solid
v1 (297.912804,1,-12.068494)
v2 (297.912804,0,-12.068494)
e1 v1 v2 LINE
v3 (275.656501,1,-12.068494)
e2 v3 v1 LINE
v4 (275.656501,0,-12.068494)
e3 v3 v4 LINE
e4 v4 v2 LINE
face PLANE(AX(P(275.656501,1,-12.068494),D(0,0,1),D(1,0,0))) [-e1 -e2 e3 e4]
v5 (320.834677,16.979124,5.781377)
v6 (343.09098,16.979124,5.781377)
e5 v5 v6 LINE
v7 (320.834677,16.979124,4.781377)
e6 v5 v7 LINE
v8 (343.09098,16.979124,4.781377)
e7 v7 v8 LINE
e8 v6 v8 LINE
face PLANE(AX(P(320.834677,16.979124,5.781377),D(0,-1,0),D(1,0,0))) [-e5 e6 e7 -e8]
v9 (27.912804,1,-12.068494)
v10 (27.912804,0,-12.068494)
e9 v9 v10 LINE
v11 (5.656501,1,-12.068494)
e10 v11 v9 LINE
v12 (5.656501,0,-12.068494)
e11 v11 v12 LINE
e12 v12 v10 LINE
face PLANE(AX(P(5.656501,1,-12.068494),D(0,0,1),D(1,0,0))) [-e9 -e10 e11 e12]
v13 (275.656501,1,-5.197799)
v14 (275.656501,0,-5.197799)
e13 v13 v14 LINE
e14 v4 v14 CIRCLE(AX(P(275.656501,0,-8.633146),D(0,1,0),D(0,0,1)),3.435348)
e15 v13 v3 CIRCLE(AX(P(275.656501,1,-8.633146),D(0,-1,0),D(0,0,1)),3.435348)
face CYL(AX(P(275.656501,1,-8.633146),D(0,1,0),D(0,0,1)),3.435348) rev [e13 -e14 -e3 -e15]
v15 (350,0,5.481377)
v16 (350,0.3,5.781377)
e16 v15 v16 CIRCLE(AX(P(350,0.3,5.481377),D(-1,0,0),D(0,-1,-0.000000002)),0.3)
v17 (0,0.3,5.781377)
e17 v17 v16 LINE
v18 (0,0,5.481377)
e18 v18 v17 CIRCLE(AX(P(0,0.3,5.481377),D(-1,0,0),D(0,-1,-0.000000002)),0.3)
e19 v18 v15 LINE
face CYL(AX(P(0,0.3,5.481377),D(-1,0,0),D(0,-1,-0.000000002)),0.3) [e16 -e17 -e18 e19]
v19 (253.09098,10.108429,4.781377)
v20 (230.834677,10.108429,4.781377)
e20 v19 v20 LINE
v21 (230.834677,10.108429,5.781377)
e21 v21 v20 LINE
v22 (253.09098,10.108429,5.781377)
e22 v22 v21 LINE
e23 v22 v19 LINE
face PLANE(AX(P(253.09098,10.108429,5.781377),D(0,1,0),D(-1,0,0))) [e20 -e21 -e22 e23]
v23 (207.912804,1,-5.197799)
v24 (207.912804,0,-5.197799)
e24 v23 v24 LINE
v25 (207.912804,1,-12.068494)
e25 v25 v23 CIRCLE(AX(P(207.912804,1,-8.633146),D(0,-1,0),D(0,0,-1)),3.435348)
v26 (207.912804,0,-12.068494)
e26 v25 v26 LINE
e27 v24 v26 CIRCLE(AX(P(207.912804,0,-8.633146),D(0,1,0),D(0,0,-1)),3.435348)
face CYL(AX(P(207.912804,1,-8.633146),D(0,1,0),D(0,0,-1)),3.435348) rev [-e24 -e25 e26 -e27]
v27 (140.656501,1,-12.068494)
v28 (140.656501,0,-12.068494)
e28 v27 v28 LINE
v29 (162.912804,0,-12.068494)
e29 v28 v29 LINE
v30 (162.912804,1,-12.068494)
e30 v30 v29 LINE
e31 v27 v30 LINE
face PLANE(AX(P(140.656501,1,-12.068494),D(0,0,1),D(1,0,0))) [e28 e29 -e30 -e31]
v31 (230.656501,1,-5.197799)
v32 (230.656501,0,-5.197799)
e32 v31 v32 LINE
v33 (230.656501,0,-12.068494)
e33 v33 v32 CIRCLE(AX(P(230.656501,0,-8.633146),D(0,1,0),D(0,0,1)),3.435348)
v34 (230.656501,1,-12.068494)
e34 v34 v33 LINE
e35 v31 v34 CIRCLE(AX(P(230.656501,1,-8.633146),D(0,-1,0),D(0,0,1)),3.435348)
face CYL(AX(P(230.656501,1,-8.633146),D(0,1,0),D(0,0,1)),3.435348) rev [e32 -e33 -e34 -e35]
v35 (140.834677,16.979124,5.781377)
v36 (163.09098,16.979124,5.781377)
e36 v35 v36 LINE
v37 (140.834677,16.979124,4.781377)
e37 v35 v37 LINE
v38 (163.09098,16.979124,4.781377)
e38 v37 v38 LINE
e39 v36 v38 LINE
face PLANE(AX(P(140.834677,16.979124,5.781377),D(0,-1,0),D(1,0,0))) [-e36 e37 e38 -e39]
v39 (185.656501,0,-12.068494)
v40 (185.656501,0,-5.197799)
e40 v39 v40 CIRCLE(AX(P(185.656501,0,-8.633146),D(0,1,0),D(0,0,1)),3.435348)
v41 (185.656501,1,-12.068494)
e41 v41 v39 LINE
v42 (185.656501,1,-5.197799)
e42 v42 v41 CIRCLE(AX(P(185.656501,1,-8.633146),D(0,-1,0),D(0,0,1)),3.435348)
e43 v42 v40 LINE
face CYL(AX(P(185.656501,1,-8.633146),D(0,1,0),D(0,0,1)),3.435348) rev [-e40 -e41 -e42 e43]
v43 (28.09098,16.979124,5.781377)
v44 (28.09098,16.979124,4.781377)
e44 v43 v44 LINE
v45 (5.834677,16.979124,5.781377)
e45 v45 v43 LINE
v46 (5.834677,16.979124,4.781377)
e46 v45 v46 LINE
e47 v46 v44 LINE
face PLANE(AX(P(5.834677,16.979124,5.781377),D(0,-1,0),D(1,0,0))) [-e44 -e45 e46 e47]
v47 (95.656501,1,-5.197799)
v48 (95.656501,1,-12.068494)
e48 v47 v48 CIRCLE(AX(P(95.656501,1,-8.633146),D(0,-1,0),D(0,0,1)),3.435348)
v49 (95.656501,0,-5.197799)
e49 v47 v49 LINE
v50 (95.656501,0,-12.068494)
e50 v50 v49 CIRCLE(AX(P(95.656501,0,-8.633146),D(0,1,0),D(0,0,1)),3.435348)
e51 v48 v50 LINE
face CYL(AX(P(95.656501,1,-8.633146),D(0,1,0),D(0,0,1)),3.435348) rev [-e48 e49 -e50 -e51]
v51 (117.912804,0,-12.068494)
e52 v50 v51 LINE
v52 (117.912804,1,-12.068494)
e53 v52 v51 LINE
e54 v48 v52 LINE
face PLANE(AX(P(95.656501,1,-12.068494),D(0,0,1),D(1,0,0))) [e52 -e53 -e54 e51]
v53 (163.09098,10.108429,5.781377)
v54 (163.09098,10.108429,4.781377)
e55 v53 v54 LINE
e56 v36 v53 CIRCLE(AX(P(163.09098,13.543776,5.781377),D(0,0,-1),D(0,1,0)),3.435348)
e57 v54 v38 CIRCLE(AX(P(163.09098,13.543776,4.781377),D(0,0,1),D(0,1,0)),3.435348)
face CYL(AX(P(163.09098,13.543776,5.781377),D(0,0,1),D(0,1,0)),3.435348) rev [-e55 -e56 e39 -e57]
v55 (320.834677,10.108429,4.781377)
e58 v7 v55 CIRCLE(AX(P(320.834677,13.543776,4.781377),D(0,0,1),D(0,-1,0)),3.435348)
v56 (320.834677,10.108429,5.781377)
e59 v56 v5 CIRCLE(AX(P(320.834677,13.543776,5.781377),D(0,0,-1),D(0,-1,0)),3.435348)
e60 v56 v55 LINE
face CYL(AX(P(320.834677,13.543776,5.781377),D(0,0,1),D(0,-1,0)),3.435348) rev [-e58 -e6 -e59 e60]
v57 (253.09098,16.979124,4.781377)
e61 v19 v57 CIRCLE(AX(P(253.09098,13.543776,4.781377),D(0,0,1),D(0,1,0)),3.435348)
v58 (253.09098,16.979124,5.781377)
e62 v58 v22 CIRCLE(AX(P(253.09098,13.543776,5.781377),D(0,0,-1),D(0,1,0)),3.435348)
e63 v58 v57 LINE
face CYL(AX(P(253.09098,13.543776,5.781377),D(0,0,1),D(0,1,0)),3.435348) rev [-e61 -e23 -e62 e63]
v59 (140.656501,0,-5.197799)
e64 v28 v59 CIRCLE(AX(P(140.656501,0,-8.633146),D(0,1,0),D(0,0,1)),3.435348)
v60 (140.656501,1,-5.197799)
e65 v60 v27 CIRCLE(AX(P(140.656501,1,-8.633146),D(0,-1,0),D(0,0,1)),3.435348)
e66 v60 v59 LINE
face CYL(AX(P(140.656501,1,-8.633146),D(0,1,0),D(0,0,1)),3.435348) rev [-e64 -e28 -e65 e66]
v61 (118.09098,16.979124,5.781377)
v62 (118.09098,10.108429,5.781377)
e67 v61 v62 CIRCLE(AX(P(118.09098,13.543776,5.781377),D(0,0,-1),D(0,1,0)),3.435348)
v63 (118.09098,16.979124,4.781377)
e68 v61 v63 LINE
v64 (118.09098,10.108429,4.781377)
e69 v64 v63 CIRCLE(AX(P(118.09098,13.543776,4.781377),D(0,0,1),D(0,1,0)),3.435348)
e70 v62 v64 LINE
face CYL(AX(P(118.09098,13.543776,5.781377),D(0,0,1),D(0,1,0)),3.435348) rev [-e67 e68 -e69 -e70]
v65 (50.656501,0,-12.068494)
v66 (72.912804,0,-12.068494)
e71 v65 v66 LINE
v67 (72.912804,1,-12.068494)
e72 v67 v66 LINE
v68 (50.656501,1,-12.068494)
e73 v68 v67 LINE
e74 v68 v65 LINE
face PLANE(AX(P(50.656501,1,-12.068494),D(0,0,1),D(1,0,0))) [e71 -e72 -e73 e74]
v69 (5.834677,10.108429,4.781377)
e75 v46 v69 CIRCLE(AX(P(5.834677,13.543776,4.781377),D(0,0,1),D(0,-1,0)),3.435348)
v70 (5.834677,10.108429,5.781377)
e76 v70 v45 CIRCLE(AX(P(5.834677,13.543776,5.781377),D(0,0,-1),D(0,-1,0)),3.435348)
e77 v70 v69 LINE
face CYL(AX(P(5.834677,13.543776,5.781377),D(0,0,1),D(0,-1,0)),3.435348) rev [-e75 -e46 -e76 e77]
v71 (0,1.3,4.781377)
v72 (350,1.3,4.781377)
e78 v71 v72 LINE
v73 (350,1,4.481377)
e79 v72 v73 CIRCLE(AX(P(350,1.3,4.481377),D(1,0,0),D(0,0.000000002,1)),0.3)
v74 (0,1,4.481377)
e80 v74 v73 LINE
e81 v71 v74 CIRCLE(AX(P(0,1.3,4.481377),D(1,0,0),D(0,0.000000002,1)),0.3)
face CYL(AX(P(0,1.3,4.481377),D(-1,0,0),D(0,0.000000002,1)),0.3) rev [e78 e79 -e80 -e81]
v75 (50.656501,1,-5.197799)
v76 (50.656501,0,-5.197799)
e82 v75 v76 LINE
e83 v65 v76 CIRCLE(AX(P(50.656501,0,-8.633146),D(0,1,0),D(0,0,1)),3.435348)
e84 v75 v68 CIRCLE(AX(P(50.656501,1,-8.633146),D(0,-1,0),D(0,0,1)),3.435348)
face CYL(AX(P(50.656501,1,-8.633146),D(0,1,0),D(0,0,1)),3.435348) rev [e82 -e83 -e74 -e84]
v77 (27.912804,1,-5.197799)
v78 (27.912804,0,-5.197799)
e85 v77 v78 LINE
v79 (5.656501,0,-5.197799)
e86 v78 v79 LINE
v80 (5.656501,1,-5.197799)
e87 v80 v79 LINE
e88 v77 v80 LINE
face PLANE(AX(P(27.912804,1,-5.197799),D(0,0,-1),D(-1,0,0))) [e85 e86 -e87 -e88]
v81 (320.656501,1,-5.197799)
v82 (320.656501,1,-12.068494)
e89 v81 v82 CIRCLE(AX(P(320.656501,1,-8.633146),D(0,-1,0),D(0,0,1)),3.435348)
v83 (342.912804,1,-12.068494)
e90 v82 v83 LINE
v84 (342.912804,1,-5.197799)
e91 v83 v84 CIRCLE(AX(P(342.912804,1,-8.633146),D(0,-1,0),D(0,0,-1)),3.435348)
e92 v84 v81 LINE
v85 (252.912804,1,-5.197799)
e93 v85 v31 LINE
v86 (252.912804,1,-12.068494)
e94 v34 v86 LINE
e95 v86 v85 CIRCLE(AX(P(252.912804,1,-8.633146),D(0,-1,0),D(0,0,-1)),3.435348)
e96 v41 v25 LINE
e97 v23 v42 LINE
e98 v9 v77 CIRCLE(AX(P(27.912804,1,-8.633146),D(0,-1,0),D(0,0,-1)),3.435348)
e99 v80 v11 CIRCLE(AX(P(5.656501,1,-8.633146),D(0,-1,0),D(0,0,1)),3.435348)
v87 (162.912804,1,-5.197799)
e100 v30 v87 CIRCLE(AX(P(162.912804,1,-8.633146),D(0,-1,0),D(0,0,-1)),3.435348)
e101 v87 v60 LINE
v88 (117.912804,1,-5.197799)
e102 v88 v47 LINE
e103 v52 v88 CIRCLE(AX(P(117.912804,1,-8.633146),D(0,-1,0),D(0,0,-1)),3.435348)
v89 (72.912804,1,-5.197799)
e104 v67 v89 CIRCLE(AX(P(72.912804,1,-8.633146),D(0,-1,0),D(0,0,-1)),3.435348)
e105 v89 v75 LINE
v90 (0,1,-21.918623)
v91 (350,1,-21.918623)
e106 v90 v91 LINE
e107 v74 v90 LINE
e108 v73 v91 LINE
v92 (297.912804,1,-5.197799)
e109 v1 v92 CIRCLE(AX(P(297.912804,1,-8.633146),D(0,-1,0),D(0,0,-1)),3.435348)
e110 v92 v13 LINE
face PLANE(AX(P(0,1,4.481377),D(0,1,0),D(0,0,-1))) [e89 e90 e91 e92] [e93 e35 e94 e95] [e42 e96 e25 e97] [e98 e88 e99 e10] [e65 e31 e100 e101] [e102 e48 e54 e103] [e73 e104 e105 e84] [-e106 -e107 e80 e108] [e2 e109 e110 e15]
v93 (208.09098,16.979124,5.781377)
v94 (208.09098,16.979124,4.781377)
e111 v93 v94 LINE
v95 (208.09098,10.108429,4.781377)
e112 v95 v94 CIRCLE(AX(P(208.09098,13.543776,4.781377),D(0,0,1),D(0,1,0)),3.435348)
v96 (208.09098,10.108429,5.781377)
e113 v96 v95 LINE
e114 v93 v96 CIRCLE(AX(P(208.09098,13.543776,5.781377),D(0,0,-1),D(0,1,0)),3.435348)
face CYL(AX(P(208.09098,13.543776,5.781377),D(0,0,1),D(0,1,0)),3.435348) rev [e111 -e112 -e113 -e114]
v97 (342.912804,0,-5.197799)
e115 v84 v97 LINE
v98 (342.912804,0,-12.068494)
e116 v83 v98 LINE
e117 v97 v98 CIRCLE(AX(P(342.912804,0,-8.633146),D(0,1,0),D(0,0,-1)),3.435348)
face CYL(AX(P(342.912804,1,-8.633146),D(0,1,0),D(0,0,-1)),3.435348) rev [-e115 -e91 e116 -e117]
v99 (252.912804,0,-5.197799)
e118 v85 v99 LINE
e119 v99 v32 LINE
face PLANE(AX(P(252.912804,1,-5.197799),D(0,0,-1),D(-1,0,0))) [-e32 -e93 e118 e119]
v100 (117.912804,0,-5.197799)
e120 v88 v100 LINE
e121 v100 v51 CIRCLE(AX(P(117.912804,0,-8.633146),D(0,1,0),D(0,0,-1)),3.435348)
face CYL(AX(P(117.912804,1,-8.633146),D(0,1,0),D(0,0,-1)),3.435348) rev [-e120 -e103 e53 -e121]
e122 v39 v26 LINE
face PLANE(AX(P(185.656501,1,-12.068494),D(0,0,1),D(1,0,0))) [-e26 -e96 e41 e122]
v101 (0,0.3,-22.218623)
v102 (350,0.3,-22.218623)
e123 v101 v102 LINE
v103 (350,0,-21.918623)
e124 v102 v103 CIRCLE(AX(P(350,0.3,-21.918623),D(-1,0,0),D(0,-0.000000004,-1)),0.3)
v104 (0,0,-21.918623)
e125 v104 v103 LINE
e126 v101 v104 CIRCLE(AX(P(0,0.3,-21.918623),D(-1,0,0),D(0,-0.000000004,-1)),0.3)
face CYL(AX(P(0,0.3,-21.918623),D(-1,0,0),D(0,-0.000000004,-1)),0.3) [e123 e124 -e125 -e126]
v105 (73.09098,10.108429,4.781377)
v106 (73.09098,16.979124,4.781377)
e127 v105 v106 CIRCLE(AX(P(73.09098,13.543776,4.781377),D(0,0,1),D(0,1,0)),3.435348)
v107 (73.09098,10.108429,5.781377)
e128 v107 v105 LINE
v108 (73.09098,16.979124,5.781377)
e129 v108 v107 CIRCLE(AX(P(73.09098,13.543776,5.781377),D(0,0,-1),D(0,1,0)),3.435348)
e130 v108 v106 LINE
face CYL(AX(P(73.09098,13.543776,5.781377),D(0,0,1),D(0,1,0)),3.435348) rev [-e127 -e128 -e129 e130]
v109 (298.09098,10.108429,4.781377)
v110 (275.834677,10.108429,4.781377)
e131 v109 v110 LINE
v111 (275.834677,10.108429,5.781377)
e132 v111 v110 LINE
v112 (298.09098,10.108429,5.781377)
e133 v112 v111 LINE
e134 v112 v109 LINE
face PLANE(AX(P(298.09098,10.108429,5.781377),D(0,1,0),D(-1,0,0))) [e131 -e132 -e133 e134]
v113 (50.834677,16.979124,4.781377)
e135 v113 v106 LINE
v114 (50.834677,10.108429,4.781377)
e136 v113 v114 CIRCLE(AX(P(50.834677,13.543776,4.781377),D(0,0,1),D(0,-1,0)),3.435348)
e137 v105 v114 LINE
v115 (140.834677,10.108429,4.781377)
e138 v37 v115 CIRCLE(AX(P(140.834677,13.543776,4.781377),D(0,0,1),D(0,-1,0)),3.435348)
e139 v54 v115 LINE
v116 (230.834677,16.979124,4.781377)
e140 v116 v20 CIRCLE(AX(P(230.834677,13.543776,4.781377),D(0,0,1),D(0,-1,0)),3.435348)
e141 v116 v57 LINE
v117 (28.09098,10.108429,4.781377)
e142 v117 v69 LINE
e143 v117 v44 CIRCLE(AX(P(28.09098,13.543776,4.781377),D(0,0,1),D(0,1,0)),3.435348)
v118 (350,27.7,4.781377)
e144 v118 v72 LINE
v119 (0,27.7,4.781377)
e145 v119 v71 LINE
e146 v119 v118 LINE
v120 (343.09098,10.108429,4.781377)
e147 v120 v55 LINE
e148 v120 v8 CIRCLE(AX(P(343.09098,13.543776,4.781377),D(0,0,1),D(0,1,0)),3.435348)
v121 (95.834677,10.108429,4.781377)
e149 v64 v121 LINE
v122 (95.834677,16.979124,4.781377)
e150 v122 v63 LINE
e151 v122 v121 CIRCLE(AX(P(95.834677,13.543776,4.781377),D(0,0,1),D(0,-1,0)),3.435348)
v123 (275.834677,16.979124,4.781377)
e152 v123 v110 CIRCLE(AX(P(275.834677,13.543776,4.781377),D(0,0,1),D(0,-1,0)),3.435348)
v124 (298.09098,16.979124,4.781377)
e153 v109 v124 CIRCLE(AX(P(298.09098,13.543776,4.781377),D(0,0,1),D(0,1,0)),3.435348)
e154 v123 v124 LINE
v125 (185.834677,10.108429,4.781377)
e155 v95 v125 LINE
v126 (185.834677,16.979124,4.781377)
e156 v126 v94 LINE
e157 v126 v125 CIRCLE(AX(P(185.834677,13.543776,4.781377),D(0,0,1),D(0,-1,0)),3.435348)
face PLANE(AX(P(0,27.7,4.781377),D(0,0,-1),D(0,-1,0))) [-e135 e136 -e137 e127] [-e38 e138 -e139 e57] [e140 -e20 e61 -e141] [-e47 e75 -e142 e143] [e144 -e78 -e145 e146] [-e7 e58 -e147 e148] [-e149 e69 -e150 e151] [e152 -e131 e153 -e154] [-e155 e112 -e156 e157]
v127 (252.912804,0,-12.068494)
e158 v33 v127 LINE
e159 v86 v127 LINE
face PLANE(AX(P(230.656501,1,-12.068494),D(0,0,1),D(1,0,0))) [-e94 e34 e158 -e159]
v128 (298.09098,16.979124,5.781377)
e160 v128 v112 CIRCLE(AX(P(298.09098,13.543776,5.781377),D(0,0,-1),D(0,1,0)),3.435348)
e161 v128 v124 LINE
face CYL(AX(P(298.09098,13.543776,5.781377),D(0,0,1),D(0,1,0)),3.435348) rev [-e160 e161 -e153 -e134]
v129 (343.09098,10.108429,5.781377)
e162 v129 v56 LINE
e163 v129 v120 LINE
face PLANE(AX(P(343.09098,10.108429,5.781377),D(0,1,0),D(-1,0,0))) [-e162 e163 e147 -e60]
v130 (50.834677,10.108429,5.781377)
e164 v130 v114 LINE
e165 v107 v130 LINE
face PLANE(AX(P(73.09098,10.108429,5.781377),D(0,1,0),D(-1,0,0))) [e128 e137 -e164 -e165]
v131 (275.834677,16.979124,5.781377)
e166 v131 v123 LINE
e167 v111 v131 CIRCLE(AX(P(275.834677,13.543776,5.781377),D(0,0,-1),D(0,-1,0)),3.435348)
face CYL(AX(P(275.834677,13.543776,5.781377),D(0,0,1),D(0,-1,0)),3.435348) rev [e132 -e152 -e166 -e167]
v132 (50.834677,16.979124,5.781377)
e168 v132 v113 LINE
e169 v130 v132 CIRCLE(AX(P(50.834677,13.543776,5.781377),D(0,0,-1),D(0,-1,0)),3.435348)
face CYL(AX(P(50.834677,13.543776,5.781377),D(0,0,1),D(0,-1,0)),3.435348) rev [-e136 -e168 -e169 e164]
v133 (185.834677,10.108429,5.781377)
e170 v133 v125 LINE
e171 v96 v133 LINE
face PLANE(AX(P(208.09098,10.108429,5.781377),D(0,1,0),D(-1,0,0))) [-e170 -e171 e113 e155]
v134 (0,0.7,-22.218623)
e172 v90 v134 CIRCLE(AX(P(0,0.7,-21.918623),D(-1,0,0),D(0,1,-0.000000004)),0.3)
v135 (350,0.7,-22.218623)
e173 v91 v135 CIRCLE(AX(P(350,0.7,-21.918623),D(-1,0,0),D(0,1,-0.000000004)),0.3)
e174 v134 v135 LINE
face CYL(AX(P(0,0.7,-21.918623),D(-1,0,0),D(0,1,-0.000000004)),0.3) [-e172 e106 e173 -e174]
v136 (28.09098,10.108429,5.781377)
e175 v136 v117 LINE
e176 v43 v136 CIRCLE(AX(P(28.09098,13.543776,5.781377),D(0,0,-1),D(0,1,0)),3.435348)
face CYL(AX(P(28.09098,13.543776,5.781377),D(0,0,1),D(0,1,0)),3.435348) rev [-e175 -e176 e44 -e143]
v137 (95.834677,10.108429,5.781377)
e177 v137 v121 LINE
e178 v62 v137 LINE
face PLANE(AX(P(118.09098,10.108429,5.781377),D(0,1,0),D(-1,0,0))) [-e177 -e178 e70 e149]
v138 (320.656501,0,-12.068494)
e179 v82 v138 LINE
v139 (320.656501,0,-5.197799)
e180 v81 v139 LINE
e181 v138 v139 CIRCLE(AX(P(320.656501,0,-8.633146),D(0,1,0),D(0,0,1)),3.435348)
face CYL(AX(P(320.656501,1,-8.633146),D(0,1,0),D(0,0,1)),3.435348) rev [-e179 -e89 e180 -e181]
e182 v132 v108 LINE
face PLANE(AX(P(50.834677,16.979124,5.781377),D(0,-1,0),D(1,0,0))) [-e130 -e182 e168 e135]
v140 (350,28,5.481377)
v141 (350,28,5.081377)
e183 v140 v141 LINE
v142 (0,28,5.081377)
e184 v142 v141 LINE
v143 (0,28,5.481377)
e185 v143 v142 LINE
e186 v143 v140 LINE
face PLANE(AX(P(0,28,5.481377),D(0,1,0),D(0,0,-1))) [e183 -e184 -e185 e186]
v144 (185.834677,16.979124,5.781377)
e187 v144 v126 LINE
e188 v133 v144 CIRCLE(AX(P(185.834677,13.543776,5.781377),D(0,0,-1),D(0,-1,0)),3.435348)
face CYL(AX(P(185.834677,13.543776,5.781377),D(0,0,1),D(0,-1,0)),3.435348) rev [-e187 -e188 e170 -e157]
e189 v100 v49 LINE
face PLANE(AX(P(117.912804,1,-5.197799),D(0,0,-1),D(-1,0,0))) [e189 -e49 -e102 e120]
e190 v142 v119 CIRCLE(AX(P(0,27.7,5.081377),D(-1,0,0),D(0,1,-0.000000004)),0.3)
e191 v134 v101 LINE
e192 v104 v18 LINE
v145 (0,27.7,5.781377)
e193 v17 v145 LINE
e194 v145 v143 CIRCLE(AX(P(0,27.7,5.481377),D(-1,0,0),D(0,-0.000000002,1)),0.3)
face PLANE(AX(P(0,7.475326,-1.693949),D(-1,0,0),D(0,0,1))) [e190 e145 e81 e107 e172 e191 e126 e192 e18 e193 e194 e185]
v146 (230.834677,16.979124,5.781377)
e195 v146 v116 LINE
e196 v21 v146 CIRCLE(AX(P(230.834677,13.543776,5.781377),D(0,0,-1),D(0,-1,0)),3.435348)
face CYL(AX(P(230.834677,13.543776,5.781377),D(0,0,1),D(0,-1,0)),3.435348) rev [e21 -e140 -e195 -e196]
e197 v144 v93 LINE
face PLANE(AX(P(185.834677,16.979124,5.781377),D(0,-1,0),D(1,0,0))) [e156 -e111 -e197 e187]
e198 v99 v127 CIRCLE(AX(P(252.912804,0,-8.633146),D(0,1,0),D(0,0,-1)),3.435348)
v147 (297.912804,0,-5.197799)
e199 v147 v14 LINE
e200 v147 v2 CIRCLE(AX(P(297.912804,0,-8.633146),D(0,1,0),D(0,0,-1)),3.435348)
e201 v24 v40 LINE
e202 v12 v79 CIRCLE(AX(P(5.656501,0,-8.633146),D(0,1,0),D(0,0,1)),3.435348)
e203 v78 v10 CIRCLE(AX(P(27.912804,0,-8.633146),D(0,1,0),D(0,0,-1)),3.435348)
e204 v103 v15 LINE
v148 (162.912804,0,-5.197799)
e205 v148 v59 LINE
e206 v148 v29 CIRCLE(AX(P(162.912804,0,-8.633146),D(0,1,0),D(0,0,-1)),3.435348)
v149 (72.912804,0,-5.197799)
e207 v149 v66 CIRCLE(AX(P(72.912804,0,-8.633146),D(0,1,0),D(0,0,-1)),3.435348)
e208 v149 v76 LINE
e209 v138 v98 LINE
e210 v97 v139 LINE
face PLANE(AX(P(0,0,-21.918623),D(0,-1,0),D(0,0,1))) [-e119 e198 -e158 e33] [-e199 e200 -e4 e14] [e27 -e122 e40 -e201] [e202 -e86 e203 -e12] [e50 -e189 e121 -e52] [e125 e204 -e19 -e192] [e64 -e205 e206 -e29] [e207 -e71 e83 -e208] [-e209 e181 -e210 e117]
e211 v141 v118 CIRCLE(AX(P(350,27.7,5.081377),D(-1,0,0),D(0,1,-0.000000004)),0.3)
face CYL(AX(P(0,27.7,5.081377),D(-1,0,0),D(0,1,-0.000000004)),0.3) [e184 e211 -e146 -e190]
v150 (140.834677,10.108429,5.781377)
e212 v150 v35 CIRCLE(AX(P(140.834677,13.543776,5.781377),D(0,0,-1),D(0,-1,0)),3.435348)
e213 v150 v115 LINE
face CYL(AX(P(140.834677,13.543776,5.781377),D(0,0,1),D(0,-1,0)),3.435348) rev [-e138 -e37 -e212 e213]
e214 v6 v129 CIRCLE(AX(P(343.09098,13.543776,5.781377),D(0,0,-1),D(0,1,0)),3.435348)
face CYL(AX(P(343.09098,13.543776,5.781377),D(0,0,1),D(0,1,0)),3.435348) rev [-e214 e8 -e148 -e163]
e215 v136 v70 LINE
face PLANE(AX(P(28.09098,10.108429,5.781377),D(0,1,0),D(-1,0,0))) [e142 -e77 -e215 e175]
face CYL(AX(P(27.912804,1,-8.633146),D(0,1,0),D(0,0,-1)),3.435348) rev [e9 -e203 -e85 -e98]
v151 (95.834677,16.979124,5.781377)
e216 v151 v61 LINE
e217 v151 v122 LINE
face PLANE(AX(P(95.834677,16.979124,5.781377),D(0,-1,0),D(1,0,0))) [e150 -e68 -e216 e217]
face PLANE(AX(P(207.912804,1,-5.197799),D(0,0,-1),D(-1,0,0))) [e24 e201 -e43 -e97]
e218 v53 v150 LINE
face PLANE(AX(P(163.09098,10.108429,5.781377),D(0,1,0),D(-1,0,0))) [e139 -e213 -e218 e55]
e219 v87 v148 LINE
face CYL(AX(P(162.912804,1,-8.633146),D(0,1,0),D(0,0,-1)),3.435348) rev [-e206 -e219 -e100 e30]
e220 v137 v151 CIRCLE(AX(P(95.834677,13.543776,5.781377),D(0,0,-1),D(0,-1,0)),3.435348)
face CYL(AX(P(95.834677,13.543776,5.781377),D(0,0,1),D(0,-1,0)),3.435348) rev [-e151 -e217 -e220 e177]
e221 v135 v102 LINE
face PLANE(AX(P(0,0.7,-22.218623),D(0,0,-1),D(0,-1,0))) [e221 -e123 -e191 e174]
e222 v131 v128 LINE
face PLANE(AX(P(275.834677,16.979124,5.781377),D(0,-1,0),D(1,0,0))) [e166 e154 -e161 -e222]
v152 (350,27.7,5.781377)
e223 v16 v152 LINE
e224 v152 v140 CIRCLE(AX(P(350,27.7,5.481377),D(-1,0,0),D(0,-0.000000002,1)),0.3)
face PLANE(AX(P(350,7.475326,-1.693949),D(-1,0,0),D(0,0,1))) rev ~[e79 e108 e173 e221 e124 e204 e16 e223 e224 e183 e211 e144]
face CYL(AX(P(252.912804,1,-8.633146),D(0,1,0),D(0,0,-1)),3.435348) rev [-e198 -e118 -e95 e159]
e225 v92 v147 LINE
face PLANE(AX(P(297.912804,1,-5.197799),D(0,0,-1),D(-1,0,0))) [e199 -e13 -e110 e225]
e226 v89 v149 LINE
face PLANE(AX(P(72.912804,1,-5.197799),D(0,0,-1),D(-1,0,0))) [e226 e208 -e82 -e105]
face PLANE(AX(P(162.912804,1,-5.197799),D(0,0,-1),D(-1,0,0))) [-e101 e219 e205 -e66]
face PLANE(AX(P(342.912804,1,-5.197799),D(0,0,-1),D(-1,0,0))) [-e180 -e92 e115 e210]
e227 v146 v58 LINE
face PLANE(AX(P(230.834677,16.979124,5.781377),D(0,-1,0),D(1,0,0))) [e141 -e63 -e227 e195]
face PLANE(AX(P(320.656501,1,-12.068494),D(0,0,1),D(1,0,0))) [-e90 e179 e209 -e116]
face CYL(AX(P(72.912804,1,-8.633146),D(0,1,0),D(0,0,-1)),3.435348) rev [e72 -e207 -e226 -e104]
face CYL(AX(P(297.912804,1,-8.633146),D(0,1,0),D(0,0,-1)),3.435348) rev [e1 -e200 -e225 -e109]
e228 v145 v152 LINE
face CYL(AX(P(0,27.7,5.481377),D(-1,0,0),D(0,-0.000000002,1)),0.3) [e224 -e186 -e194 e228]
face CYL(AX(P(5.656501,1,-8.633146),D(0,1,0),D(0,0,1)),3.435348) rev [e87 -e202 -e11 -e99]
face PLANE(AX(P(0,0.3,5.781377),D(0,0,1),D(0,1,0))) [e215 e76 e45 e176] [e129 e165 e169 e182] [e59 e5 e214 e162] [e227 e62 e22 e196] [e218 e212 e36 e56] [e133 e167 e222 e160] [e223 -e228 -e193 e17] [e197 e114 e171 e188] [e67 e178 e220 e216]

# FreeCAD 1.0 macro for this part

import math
import FreeCAD as App
import Part
import Sketcher

V = App.Vector

doc = App.newDocument("Part")
params = doc.addObject("Spreadsheet::Sheet", "Params")
for row, (alias, value) in enumerate([
    ("sketch1_radius", "0.3 mm"),
    ("sketch1_width", "0.4 mm"),
    ("sketch1_width2", "26.4 mm"),
    ("pad1_length", "350 mm"),
], start=1):
    params.set(f"A{row}", alias)
    params.set(f"B{row}", "=" + value)
    params.setAlias(f"B{row}", alias)

body = doc.addObject("PartDesign::Body", "Body")

sketch1 = body.newObject("Sketcher::SketchObject", "Sketch")
sketch1.AttachmentSupport = (doc.getObject("YZ_Plane"), [""])
sketch1.MapMode = "FlatFace"
sketch1.addGeometry([
    Part.ArcOfCircle(Part.Circle(V(0.3, 5.48, 0), V(0, 0, 1), 0.3), math.radians(90), math.radians(180)),
    Part.LineSegment(V(0, 5.48, 0), V(0, -21.92, 0)),
    Part.ArcOfCircle(Part.Circle(V(0.3, -21.92, 0), V(0, 0, 1), 0.3), math.radians(-180), math.radians(-90)),
    Part.LineSegment(V(0.3, -22.22, 0), V(0.7, -22.22, 0)),
    Part.ArcOfCircle(Part.Circle(V(0.7, -21.92, 0), V(0, 0, 1), 0.3), math.radians(-90), math.radians(0)),
    Part.LineSegment(V(1, -21.92, 0), V(1, 4.48, 0)),
    Part.ArcOfCircle(Part.Circle(V(1.3, 4.48, 0), V(0, 0, 1), 0.3), math.radians(90), math.radians(180)),
    Part.LineSegment(V(1.3, 4.78, 0), V(27.7, 4.78, 0)),
    Part.ArcOfCircle(Part.Circle(V(27.7, 5.08, 0), V(0, 0, 1), 0.3), math.radians(-90), math.radians(0)),
    Part.LineSegment(V(28, 5.08, 0), V(28, 5.48, 0)),
    Part.ArcOfCircle(Part.Circle(V(27.7, 5.48, 0), V(0, 0, 1), 0.3), math.radians(0), math.radians(90)),
    Part.LineSegment(V(27.7, 5.78, 0), V(0.3, 5.78, 0)),
], False)
sketch1.addConstraint([
    Sketcher.Constraint("Tangent", 0, 2, 1, 1),
    Sketcher.Constraint("Tangent", 1, 2, 2, 1),
    Sketcher.Constraint("Tangent", 2, 2, 3, 1),
    Sketcher.Constraint("Tangent", 3, 2, 4, 1),
    Sketcher.Constraint("Tangent", 4, 2, 5, 1),
    Sketcher.Constraint("Tangent", 5, 2, 6, 2),
    Sketcher.Constraint("Tangent", 6, 1, 7, 1),
    Sketcher.Constraint("Tangent", 7, 2, 8, 1),
    Sketcher.Constraint("Tangent", 8, 2, 9, 1),
    Sketcher.Constraint("Tangent", 9, 2, 10, 1),
    Sketcher.Constraint("Tangent", 10, 2, 11, 1),
    Sketcher.Constraint("Tangent", 11, 2, 0, 1),
    Sketcher.Constraint("Vertical", 1),
    Sketcher.Constraint("Horizontal", 3),
    Sketcher.Constraint("Vertical", 5),
    Sketcher.Constraint("Horizontal", 7),
    Sketcher.Constraint("Vertical", 9),
    Sketcher.Constraint("Horizontal", 11),
    Sketcher.Constraint("Equal", 0, 2),
    Sketcher.Constraint("Equal", 2, 4),
    Sketcher.Constraint("Equal", 4, 6),
    Sketcher.Constraint("Equal", 6, 8),
    Sketcher.Constraint("Equal", 8, 10),
    Sketcher.Constraint("PointOnObject", 0, 2, -2),
    Sketcher.Constraint("Equal", 11, 1),
    Sketcher.Constraint("Equal", 7, 5),
    Sketcher.Constraint("Radius", 0, 0.3),
    Sketcher.Constraint("DistanceX", 3, 1, 3, 2, 0.4),
    Sketcher.Constraint("DistanceX", 7, 1, 7, 2, 26.4),
    Sketcher.Constraint("DistanceY", -1, 1, 0, 3, 5.481377),
])
sketch1.setExpression("Constraints[26]", "Params.sketch1_radius")
sketch1.setExpression("Constraints[27]", "Params.sketch1_width")
sketch1.setExpression("Constraints[28]", "Params.sketch1_width2")
pad1 = body.newObject("PartDesign::Pad", "Pad")
pad1.Profile = sketch1
pad1.setExpression("Length", "Params.pad1_length")

sketch2 = body.newObject("Sketcher::SketchObject", "Sketch001")
sketch2.AttachmentSupport = (doc.getObject("XY_Plane"), [""])
sketch2.MapMode = "FlatFace"
sketch2.AttachmentOffset = App.Placement(V(0, 0, 5.781377), App.Rotation())
sketch2.addGeometry([
    Part.LineSegment(V(28.1, 17, 0), V(5.8, 17, 0)),
    Part.ArcOfCircle(Part.Circle(V(5.8, 13.5, 0), V(0, 0, 1), 3.4), math.radians(90), math.radians(270)),
    Part.LineSegment(V(5.8, 10.1, 0), V(28.1, 10.1, 0)),
    Part.ArcOfCircle(Part.Circle(V(28.1, 13.5, 0), V(0, 0, 1), 3.4), math.radians(-90), math.radians(90)),
], False)
sketch2.addConstraint([
    Sketcher.Constraint("Tangent", 0, 2, 1, 1),
    Sketcher.Constraint("Tangent", 1, 2, 2, 1),
    Sketcher.Constraint("Tangent", 2, 2, 3, 1),
    Sketcher.Constraint("Tangent", 3, 2, 0, 1),
    Sketcher.Constraint("Horizontal", 0),
    Sketcher.Constraint("Horizontal", 2),
    Sketcher.Constraint("Radius", 1, 3.435348),
    Sketcher.Constraint("DistanceX", 0, 2, 0, 1, 22.256303),
    Sketcher.Constraint("DistanceX", -1, 1, 3, 3, 28.09098),
    Sketcher.Constraint("DistanceY", -1, 1, 1, 2, 10.108429),
])
pocket1 = body.newObject("PartDesign::Pocket", "Pocket")
pocket1.Profile = sketch2
pocket1.Type = "UpToFirst"

sketch3 = body.newObject("Sketcher::SketchObject", "Sketch002")
sketch3.AttachmentSupport = (doc.getObject("XY_Plane"), [""])
sketch3.MapMode = "FlatFace"
sketch3.AttachmentOffset = App.Placement(V(0, 0, 5.781377), App.Rotation())
sketch3.addGeometry([
    Part.LineSegment(V(73.1, 17, 0), V(50.8, 17, 0)),
    Part.ArcOfCircle(Part.Circle(V(50.8, 13.5, 0), V(0, 0, 1), 3.4), math.radians(90), math.radians(270)),
    Part.LineSegment(V(50.8, 10.1, 0), V(73.1, 10.1, 0)),
    Part.ArcOfCircle(Part.Circle(V(73.1, 13.5, 0), V(0, 0, 1), 3.4), math.radians(-90), math.radians(90)),
], False)
sketch3.addConstraint([
    Sketcher.Constraint("Tangent", 0, 2, 1, 1),
    Sketcher.Constraint("Tangent", 1, 2, 2, 1),
    Sketcher.Constraint("Tangent", 2, 2, 3, 1),
    Sketcher.Constraint("Tangent", 3, 2, 0, 1),
    Sketcher.Constraint("Horizontal", 0),
    Sketcher.Constraint("Horizontal", 2),
    Sketcher.Constraint("Radius", 1, 3.435348),
    Sketcher.Constraint("DistanceX", 0, 2, 0, 1, 22.256303),
    Sketcher.Constraint("DistanceX", -1, 1, 3, 3, 73.09098),
    Sketcher.Constraint("DistanceY", -1, 1, 1, 2, 10.108429),
])
pocket2 = body.newObject("PartDesign::Pocket", "Pocket001")
pocket2.Profile = sketch3
pocket2.Type = "UpToFirst"

sketch4 = body.newObject("Sketcher::SketchObject", "Sketch003")
sketch4.AttachmentSupport = (doc.getObject("XY_Plane"), [""])
sketch4.MapMode = "FlatFace"
sketch4.AttachmentOffset = App.Placement(V(0, 0, 5.781377), App.Rotation())
sketch4.addGeometry([
    Part.LineSegment(V(118.1, 17, 0), V(95.8, 17, 0)),
    Part.ArcOfCircle(Part.Circle(V(95.8, 13.5, 0), V(0, 0, 1), 3.4), math.radians(90), math.radians(270)),
    Part.LineSegment(V(95.8, 10.1, 0), V(118.1, 10.1, 0)),
    Part.ArcOfCircle(Part.Circle(V(118.1, 13.5, 0), V(0, 0, 1), 3.4), math.radians(-90), math.radians(90)),
], False)
sketch4.addConstraint([
    Sketcher.Constraint("Tangent", 0, 2, 1, 1),
    Sketcher.Constraint("Tangent", 1, 2, 2, 1),
    Sketcher.Constraint("Tangent", 2, 2, 3, 1),
    Sketcher.Constraint("Tangent", 3, 2, 0, 1),
    Sketcher.Constraint("Horizontal", 0),
    Sketcher.Constraint("Horizontal", 2),
    Sketcher.Constraint("Radius", 1, 3.435348),
    Sketcher.Constraint("DistanceX", 0, 2, 0, 1, 22.256303),
    Sketcher.Constraint("DistanceX", -1, 1, 3, 3, 118.09098),
    Sketcher.Constraint("DistanceY", -1, 1, 1, 2, 10.108429),
])
pocket3 = body.newObject("PartDesign::Pocket", "Pocket002")
pocket3.Profile = sketch4
pocket3.Type = "UpToFirst"

sketch5 = body.newObject("Sketcher::SketchObject", "Sketch004")
sketch5.AttachmentSupport = (doc.getObject("XY_Plane"), [""])
sketch5.MapMode = "FlatFace"
sketch5.AttachmentOffset = App.Placement(V(0, 0, 5.781377), App.Rotation())
sketch5.addGeometry([
    Part.LineSegment(V(163.1, 17, 0), V(140.8, 17, 0)),
    Part.ArcOfCircle(Part.Circle(V(140.8, 13.5, 0), V(0, 0, 1), 3.4), math.radians(90), math.radians(270)),
    Part.LineSegment(V(140.8, 10.1, 0), V(163.1, 10.1, 0)),
    Part.ArcOfCircle(Part.Circle(V(163.1, 13.5, 0), V(0, 0, 1), 3.4), math.radians(-90), math.radians(90)),
], False)
sketch5.addConstraint([
    Sketcher.Constraint("Tangent", 0, 2, 1, 1),
    Sketcher.Constraint("Tangent", 1, 2, 2, 1),
    Sketcher.Constraint("Tangent", 2, 2, 3, 1),
    Sketcher.Constraint("Tangent", 3, 2, 0, 1),
    Sketcher.Constraint("Horizontal", 0),
    Sketcher.Constraint("Horizontal", 2),
    Sketcher.Constraint("Radius", 1, 3.435348),
    Sketcher.Constraint("DistanceX", 0, 2, 0, 1, 22.256303),
    Sketcher.Constraint("DistanceX", -1, 1, 3, 3, 163.09098),
    Sketcher.Constraint("DistanceY", -1, 1, 1, 2, 10.108429),
])
pocket4 = body.newObject("PartDesign::Pocket", "Pocket003")
pocket4.Profile = sketch5
pocket4.Type = "UpToFirst"

sketch6 = body.newObject("Sketcher::SketchObject", "Sketch005")
sketch6.AttachmentSupport = (doc.getObject("XY_Plane"), [""])
sketch6.MapMode = "FlatFace"
sketch6.AttachmentOffset = App.Placement(V(0, 0, 5.781377), App.Rotation())
sketch6.addGeometry([
    Part.LineSegment(V(208.1, 17, 0), V(185.8, 17, 0)),
    Part.ArcOfCircle(Part.Circle(V(185.8, 13.5, 0), V(0, 0, 1), 3.4), math.radians(90), math.radians(270)),
    Part.LineSegment(V(185.8, 10.1, 0), V(208.1, 10.1, 0)),
    Part.ArcOfCircle(Part.Circle(V(208.1, 13.5, 0), V(0, 0, 1), 3.4), math.radians(-90), math.radians(90)),
], False)
sketch6.addConstraint([
    Sketcher.Constraint("Tangent", 0, 2, 1, 1),
    Sketcher.Constraint("Tangent", 1, 2, 2, 1),
    Sketcher.Constraint("Tangent", 2, 2, 3, 1),
    Sketcher.Constraint("Tangent", 3, 2, 0, 1),
    Sketcher.Constraint("Horizontal", 0),
    Sketcher.Constraint("Horizontal", 2),
    Sketcher.Constraint("Radius", 1, 3.435348),
    Sketcher.Constraint("DistanceX", 0, 2, 0, 1, 22.256303),
    Sketcher.Constraint("DistanceX", -1, 1, 3, 3, 208.09098),
    Sketcher.Constraint("DistanceY", -1, 1, 1, 2, 10.108429),
])
pocket5 = body.newObject("PartDesign::Pocket", "Pocket004")
pocket5.Profile = sketch6
pocket5.Type = "UpToFirst"

sketch7 = body.newObject("Sketcher::SketchObject", "Sketch006")
sketch7.AttachmentSupport = (doc.getObject("XY_Plane"), [""])
sketch7.MapMode = "FlatFace"
sketch7.AttachmentOffset = App.Placement(V(0, 0, 5.781377), App.Rotation())
sketch7.addGeometry([
    Part.LineSegment(V(253.1, 17, 0), V(230.8, 17, 0)),
    Part.ArcOfCircle(Part.Circle(V(230.8, 13.5, 0), V(0, 0, 1), 3.4), math.radians(90), math.radians(270)),
    Part.LineSegment(V(230.8, 10.1, 0), V(253.1, 10.1, 0)),
    Part.ArcOfCircle(Part.Circle(V(253.1, 13.5, 0), V(0, 0, 1), 3.4), math.radians(-90), math.radians(90)),
], False)
sketch7.addConstraint([
    Sketcher.Constraint("Tangent", 0, 2, 1, 1),
    Sketcher.Constraint("Tangent", 1, 2, 2, 1),
    Sketcher.Constraint("Tangent", 2, 2, 3, 1),
    Sketcher.Constraint("Tangent", 3, 2, 0, 1),
    Sketcher.Constraint("Horizontal", 0),
    Sketcher.Constraint("Horizontal", 2),
    Sketcher.Constraint("Radius", 1, 3.435348),
    Sketcher.Constraint("DistanceX", 0, 2, 0, 1, 22.256303),
    Sketcher.Constraint("DistanceX", -1, 1, 3, 3, 253.09098),
    Sketcher.Constraint("DistanceY", -1, 1, 1, 2, 10.108429),
])
pocket6 = body.newObject("PartDesign::Pocket", "Pocket005")
pocket6.Profile = sketch7
pocket6.Type = "UpToFirst"

sketch8 = body.newObject("Sketcher::SketchObject", "Sketch007")
sketch8.AttachmentSupport = (doc.getObject("XY_Plane"), [""])
sketch8.MapMode = "FlatFace"
sketch8.AttachmentOffset = App.Placement(V(0, 0, 5.781377), App.Rotation())
sketch8.addGeometry([
    Part.LineSegment(V(298.1, 17, 0), V(275.8, 17, 0)),
    Part.ArcOfCircle(Part.Circle(V(275.8, 13.5, 0), V(0, 0, 1), 3.4), math.radians(90), math.radians(270)),
    Part.LineSegment(V(275.8, 10.1, 0), V(298.1, 10.1, 0)),
    Part.ArcOfCircle(Part.Circle(V(298.1, 13.5, 0), V(0, 0, 1), 3.4), math.radians(-90), math.radians(90)),
], False)
sketch8.addConstraint([
    Sketcher.Constraint("Tangent", 0, 2, 1, 1),
    Sketcher.Constraint("Tangent", 1, 2, 2, 1),
    Sketcher.Constraint("Tangent", 2, 2, 3, 1),
    Sketcher.Constraint("Tangent", 3, 2, 0, 1),
    Sketcher.Constraint("Horizontal", 0),
    Sketcher.Constraint("Horizontal", 2),
    Sketcher.Constraint("Radius", 1, 3.435348),
    Sketcher.Constraint("DistanceX", 0, 2, 0, 1, 22.256303),
    Sketcher.Constraint("DistanceX", -1, 1, 3, 3, 298.09098),
    Sketcher.Constraint("DistanceY", -1, 1, 1, 2, 10.108429),
])
pocket7 = body.newObject("PartDesign::Pocket", "Pocket006")
pocket7.Profile = sketch8
pocket7.Type = "UpToFirst"

sketch9 = body.newObject("Sketcher::SketchObject", "Sketch008")
sketch9.AttachmentSupport = (doc.getObject("XY_Plane"), [""])
sketch9.MapMode = "FlatFace"
sketch9.AttachmentOffset = App.Placement(V(0, 0, 5.781377), App.Rotation())
sketch9.addGeometry([
    Part.LineSegment(V(343.1, 17, 0), V(320.8, 17, 0)),
    Part.ArcOfCircle(Part.Circle(V(320.8, 13.5, 0), V(0, 0, 1), 3.4), math.radians(90), math.radians(270)),
    Part.LineSegment(V(320.8, 10.1, 0), V(343.1, 10.1, 0)),
    Part.ArcOfCircle(Part.Circle(V(343.1, 13.5, 0), V(0, 0, 1), 3.4), math.radians(-90), math.radians(90)),
], False)
sketch9.addConstraint([
    Sketcher.Constraint("Tangent", 0, 2, 1, 1),
    Sketcher.Constraint("Tangent", 1, 2, 2, 1),
    Sketcher.Constraint("Tangent", 2, 2, 3, 1),
    Sketcher.Constraint("Tangent", 3, 2, 0, 1),
    Sketcher.Constraint("Horizontal", 0),
    Sketcher.Constraint("Horizontal", 2),
    Sketcher.Constraint("Radius", 1, 3.435348),
    Sketcher.Constraint("DistanceX", 0, 2, 0, 1, 22.256303),
    Sketcher.Constraint("DistanceX", -1, 1, 3, 3, 343.09098),
    Sketcher.Constraint("DistanceY", -1, 1, 1, 2, 10.108429),
])
pocket8 = body.newObject("PartDesign::Pocket", "Pocket007")
pocket8.Profile = sketch9
pocket8.Type = "UpToFirst"

sketch10 = body.newObject("Sketcher::SketchObject", "Sketch009")
sketch10.AttachmentSupport = (doc.getObject("XZ_Plane"), [""])
sketch10.MapMode = "FlatFace"
sketch10.AttachmentOffset = App.Placement(V(0, 0, -1), App.Rotation())
sketch10.addGeometry([
    Part.LineSegment(V(27.9, -12.1, 0), V(5.7, -12.1, 0)),
    Part.ArcOfCircle(Part.Circle(V(5.7, -8.6, 0), V(0, 0, 1), 3.4), math.radians(90), math.radians(270)),
    Part.LineSegment(V(5.7, -5.2, 0), V(27.9, -5.2, 0)),
    Part.ArcOfCircle(Part.Circle(V(27.9, -8.6, 0), V(0, 0, 1), 3.4), math.radians(-90), math.radians(90)),
], False)
sketch10.addConstraint([
    Sketcher.Constraint("Tangent", 0, 2, 1, 2),
    Sketcher.Constraint("Tangent", 1, 1, 2, 1),
    Sketcher.Constraint("Tangent", 2, 2, 3, 2),
    Sketcher.Constraint("Tangent", 3, 1, 0, 1),
    Sketcher.Constraint("Horizontal", 0),
    Sketcher.Constraint("Horizontal", 2),
    Sketcher.Constraint("Radius", 1, 3.435348),
    Sketcher.Constraint("DistanceX", -1, 1, 1, 3, 5.656501),
    Sketcher.Constraint("DistanceY", 1, 1, -1, 1, 5.197799),
    Sketcher.Constraint("DistanceX", 0, 2, 0, 1, 22.256303),
])
pocket9 = body.newObject("PartDesign::Pocket", "Pocket008")
pocket9.Profile = sketch10
pocket9.Type = "UpToFirst"
pocket9.Reversed = True

sketch11 = body.newObject("Sketcher::SketchObject", "Sketch010")
sketch11.AttachmentSupport = (doc.getObject("XZ_Plane"), [""])
sketch11.MapMode = "FlatFace"
sketch11.AttachmentOffset = App.Placement(V(0, 0, -1), App.Rotation())
sketch11.addGeometry([
    Part.LineSegment(V(72.9, -12.1, 0), V(50.7, -12.1, 0)),
    Part.ArcOfCircle(Part.Circle(V(50.7, -8.6, 0), V(0, 0, 1), 3.4), math.radians(90), math.radians(270)),
    Part.LineSegment(V(50.7, -5.2, 0), V(72.9, -5.2, 0)),
    Part.ArcOfCircle(Part.Circle(V(72.9, -8.6, 0), V(0, 0, 1), 3.4), math.radians(-90), math.radians(90)),
], False)
sketch11.addConstraint([
    Sketcher.Constraint("Tangent", 0, 2, 1, 2),
    Sketcher.Constraint("Tangent", 1, 1, 2, 1),
    Sketcher.Constraint("Tangent", 2, 2, 3, 2),
    Sketcher.Constraint("Tangent", 3, 1, 0, 1),
    Sketcher.Constraint("Horizontal", 0),
    Sketcher.Constraint("Horizontal", 2),
    Sketcher.Constraint("Radius", 1, 3.435348),
    Sketcher.Constraint("DistanceX", -1, 1, 1, 3, 50.656501),
    Sketcher.Constraint("DistanceY", 1, 1, -1, 1, 5.197799),
    Sketcher.Constraint("DistanceX", 0, 2, 0, 1, 22.256303),
])
pocket10 = body.newObject("PartDesign::Pocket", "Pocket009")
pocket10.Profile = sketch11
pocket10.Type = "UpToFirst"
pocket10.Reversed = True

sketch12 = body.newObject("Sketcher::SketchObject", "Sketch011")
sketch12.AttachmentSupport = (doc.getObject("XZ_Plane"), [""])
sketch12.MapMode = "FlatFace"
sketch12.AttachmentOffset = App.Placement(V(0, 0, -1), App.Rotation())
sketch12.addGeometry([
    Part.LineSegment(V(117.9, -12.1, 0), V(95.7, -12.1, 0)),
    Part.ArcOfCircle(Part.Circle(V(95.7, -8.6, 0), V(0, 0, 1), 3.4), math.radians(90), math.radians(270)),
    Part.LineSegment(V(95.7, -5.2, 0), V(117.9, -5.2, 0)),
    Part.ArcOfCircle(Part.Circle(V(117.9, -8.6, 0), V(0, 0, 1), 3.4), math.radians(-90), math.radians(90)),
], False)
sketch12.addConstraint([
    Sketcher.Constraint("Tangent", 0, 2, 1, 2),
    Sketcher.Constraint("Tangent", 1, 1, 2, 1),
    Sketcher.Constraint("Tangent", 2, 2, 3, 2),
    Sketcher.Constraint("Tangent", 3, 1, 0, 1),
    Sketcher.Constraint("Horizontal", 0),
    Sketcher.Constraint("Horizontal", 2),
    Sketcher.Constraint("Radius", 1, 3.435348),
    Sketcher.Constraint("DistanceX", -1, 1, 1, 3, 95.656501),
    Sketcher.Constraint("DistanceY", 1, 1, -1, 1, 5.197799),
    Sketcher.Constraint("DistanceX", 0, 2, 0, 1, 22.256303),
])
pocket11 = body.newObject("PartDesign::Pocket", "Pocket010")
pocket11.Profile = sketch12
pocket11.Type = "UpToFirst"
pocket11.Reversed = True

sketch13 = body.newObject("Sketcher::SketchObject", "Sketch012")
sketch13.AttachmentSupport = (doc.getObject("XZ_Plane"), [""])
sketch13.MapMode = "FlatFace"
sketch13.AttachmentOffset = App.Placement(V(0, 0, -1), App.Rotation())
sketch13.addGeometry([
    Part.LineSegment(V(162.9, -12.1, 0), V(140.7, -12.1, 0)),
    Part.ArcOfCircle(Part.Circle(V(140.7, -8.6, 0), V(0, 0, 1), 3.4), math.radians(90), math.radians(270)),
    Part.LineSegment(V(140.7, -5.2, 0), V(162.9, -5.2, 0)),
    Part.ArcOfCircle(Part.Circle(V(162.9, -8.6, 0), V(0, 0, 1), 3.4), math.radians(-90), math.radians(90)),
], False)
sketch13.addConstraint([
    Sketcher.Constraint("Tangent", 0, 2, 1, 2),
    Sketcher.Constraint("Tangent", 1, 1, 2, 1),
    Sketcher.Constraint("Tangent", 2, 2, 3, 2),
    Sketcher.Constraint("Tangent", 3, 1, 0, 1),
    Sketcher.Constraint("Horizontal", 0),
    Sketcher.Constraint("Horizontal", 2),
    Sketcher.Constraint("Radius", 1, 3.435348),
    Sketcher.Constraint("DistanceX", -1, 1, 1, 3, 140.656501),
    Sketcher.Constraint("DistanceY", 1, 1, -1, 1, 5.197799),
    Sketcher.Constraint("DistanceX", 0, 2, 0, 1, 22.256303),
])
pocket12 = body.newObject("PartDesign::Pocket", "Pocket011")
pocket12.Profile = sketch13
pocket12.Type = "UpToFirst"
pocket12.Reversed = True

sketch14 = body.newObject("Sketcher::SketchObject", "Sketch013")
sketch14.AttachmentSupport = (doc.getObject("XZ_Plane"), [""])
sketch14.MapMode = "FlatFace"
sketch14.AttachmentOffset = App.Placement(V(0, 0, -1), App.Rotation())
sketch14.addGeometry([
    Part.LineSegment(V(207.9, -12.1, 0), V(185.7, -12.1, 0)),
    Part.ArcOfCircle(Part.Circle(V(185.7, -8.6, 0), V(0, 0, 1), 3.4), math.radians(90), math.radians(270)),
    Part.LineSegment(V(185.7, -5.2, 0), V(207.9, -5.2, 0)),
    Part.ArcOfCircle(Part.Circle(V(207.9, -8.6, 0), V(0, 0, 1), 3.4), math.radians(-90), math.radians(90)),
], False)
sketch14.addConstraint([
    Sketcher.Constraint("Tangent", 0, 2, 1, 2),
    Sketcher.Constraint("Tangent", 1, 1, 2, 1),
    Sketcher.Constraint("Tangent", 2, 2, 3, 2),
    Sketcher.Constraint("Tangent", 3, 1, 0, 1),
    Sketcher.Constraint("Horizontal", 0),
    Sketcher.Constraint("Horizontal", 2),
    Sketcher.Constraint("Radius", 1, 3.435348),
    Sketcher.Constraint("DistanceX", -1, 1, 1, 3, 185.656501),
    Sketcher.Constraint("DistanceY", 1, 1, -1, 1, 5.197799),
    Sketcher.Constraint("DistanceX", 0, 2, 0, 1, 22.256303),
])
pocket13 = body.newObject("PartDesign::Pocket", "Pocket012")
pocket13.Profile = sketch14
pocket13.Type = "UpToFirst"
pocket13.Reversed = True

sketch15 = body.newObject("Sketcher::SketchObject", "Sketch014")
sketch15.AttachmentSupport = (doc.getObject("XZ_Plane"), [""])
sketch15.MapMode = "FlatFace"
sketch15.AttachmentOffset = App.Placement(V(0, 0, -1), App.Rotation())
sketch15.addGeometry([
    Part.LineSegment(V(252.9, -12.1, 0), V(230.7, -12.1, 0)),
    Part.ArcOfCircle(Part.Circle(V(230.7, -8.6, 0), V(0, 0, 1), 3.4), math.radians(90), math.radians(270)),
    Part.LineSegment(V(230.7, -5.2, 0), V(252.9, -5.2, 0)),
    Part.ArcOfCircle(Part.Circle(V(252.9, -8.6, 0), V(0, 0, 1), 3.4), math.radians(-90), math.radians(90)),
], False)
sketch15.addConstraint([
    Sketcher.Constraint("Tangent", 0, 2, 1, 2),
    Sketcher.Constraint("Tangent", 1, 1, 2, 1),
    Sketcher.Constraint("Tangent", 2, 2, 3, 2),
    Sketcher.Constraint("Tangent", 3, 1, 0, 1),
    Sketcher.Constraint("Horizontal", 0),
    Sketcher.Constraint("Horizontal", 2),
    Sketcher.Constraint("Radius", 1, 3.435348),
    Sketcher.Constraint("DistanceX", -1, 1, 1, 3, 230.656501),
    Sketcher.Constraint("DistanceY", 1, 1, -1, 1, 5.197799),
    Sketcher.Constraint("DistanceX", 0, 2, 0, 1, 22.256303),
])
pocket14 = body.newObject("PartDesign::Pocket", "Pocket013")
pocket14.Profile = sketch15
pocket14.Type = "UpToFirst"
pocket14.Reversed = True

sketch16 = body.newObject("Sketcher::SketchObject", "Sketch015")
sketch16.AttachmentSupport = (doc.getObject("XZ_Plane"), [""])
sketch16.MapMode = "FlatFace"
sketch16.AttachmentOffset = App.Placement(V(0, 0, -1), App.Rotation())
sketch16.addGeometry([
    Part.LineSegment(V(297.9, -12.1, 0), V(275.7, -12.1, 0)),
    Part.ArcOfCircle(Part.Circle(V(275.7, -8.6, 0), V(0, 0, 1), 3.4), math.radians(90), math.radians(270)),
    Part.LineSegment(V(275.7, -5.2, 0), V(297.9, -5.2, 0)),
    Part.ArcOfCircle(Part.Circle(V(297.9, -8.6, 0), V(0, 0, 1), 3.4), math.radians(-90), math.radians(90)),
], False)
sketch16.addConstraint([
    Sketcher.Constraint("Tangent", 0, 2, 1, 2),
    Sketcher.Constraint("Tangent", 1, 1, 2, 1),
    Sketcher.Constraint("Tangent", 2, 2, 3, 2),
    Sketcher.Constraint("Tangent", 3, 1, 0, 1),
    Sketcher.Constraint("Horizontal", 0),
    Sketcher.Constraint("Horizontal", 2),
    Sketcher.Constraint("Radius", 1, 3.435348),
    Sketcher.Constraint("DistanceX", -1, 1, 1, 3, 275.656501),
    Sketcher.Constraint("DistanceY", 1, 1, -1, 1, 5.197799),
    Sketcher.Constraint("DistanceX", 0, 2, 0, 1, 22.256303),
])
pocket15 = body.newObject("PartDesign::Pocket", "Pocket014")
pocket15.Profile = sketch16
pocket15.Type = "UpToFirst"
pocket15.Reversed = True

sketch17 = body.newObject("Sketcher::SketchObject", "Sketch016")
sketch17.AttachmentSupport = (doc.getObject("XZ_Plane"), [""])
sketch17.MapMode = "FlatFace"
sketch17.AttachmentOffset = App.Placement(V(0, 0, -1), App.Rotation())
sketch17.addGeometry([
    Part.LineSegment(V(342.9, -12.1, 0), V(320.7, -12.1, 0)),
    Part.ArcOfCircle(Part.Circle(V(320.7, -8.6, 0), V(0, 0, 1), 3.4), math.radians(90), math.radians(270)),
    Part.LineSegment(V(320.7, -5.2, 0), V(342.9, -5.2, 0)),
    Part.ArcOfCircle(Part.Circle(V(342.9, -8.6, 0), V(0, 0, 1), 3.4), math.radians(-90), math.radians(90)),
], False)
sketch17.addConstraint([
    Sketcher.Constraint("Tangent", 0, 2, 1, 2),
    Sketcher.Constraint("Tangent", 1, 1, 2, 1),
    Sketcher.Constraint("Tangent", 2, 2, 3, 2),
    Sketcher.Constraint("Tangent", 3, 1, 0, 1),
    Sketcher.Constraint("Horizontal", 0),
    Sketcher.Constraint("Horizontal", 2),
    Sketcher.Constraint("Radius", 1, 3.435348),
    Sketcher.Constraint("DistanceX", -1, 1, 1, 3, 320.656501),
    Sketcher.Constraint("DistanceY", 1, 1, -1, 1, 5.197799),
    Sketcher.Constraint("DistanceX", 0, 2, 0, 1, 22.256303),
])
pocket16 = body.newObject("PartDesign::Pocket", "Pocket015")
pocket16.Profile = sketch17
pocket16.Type = "UpToFirst"
pocket16.Reversed = True

doc.recompute()
